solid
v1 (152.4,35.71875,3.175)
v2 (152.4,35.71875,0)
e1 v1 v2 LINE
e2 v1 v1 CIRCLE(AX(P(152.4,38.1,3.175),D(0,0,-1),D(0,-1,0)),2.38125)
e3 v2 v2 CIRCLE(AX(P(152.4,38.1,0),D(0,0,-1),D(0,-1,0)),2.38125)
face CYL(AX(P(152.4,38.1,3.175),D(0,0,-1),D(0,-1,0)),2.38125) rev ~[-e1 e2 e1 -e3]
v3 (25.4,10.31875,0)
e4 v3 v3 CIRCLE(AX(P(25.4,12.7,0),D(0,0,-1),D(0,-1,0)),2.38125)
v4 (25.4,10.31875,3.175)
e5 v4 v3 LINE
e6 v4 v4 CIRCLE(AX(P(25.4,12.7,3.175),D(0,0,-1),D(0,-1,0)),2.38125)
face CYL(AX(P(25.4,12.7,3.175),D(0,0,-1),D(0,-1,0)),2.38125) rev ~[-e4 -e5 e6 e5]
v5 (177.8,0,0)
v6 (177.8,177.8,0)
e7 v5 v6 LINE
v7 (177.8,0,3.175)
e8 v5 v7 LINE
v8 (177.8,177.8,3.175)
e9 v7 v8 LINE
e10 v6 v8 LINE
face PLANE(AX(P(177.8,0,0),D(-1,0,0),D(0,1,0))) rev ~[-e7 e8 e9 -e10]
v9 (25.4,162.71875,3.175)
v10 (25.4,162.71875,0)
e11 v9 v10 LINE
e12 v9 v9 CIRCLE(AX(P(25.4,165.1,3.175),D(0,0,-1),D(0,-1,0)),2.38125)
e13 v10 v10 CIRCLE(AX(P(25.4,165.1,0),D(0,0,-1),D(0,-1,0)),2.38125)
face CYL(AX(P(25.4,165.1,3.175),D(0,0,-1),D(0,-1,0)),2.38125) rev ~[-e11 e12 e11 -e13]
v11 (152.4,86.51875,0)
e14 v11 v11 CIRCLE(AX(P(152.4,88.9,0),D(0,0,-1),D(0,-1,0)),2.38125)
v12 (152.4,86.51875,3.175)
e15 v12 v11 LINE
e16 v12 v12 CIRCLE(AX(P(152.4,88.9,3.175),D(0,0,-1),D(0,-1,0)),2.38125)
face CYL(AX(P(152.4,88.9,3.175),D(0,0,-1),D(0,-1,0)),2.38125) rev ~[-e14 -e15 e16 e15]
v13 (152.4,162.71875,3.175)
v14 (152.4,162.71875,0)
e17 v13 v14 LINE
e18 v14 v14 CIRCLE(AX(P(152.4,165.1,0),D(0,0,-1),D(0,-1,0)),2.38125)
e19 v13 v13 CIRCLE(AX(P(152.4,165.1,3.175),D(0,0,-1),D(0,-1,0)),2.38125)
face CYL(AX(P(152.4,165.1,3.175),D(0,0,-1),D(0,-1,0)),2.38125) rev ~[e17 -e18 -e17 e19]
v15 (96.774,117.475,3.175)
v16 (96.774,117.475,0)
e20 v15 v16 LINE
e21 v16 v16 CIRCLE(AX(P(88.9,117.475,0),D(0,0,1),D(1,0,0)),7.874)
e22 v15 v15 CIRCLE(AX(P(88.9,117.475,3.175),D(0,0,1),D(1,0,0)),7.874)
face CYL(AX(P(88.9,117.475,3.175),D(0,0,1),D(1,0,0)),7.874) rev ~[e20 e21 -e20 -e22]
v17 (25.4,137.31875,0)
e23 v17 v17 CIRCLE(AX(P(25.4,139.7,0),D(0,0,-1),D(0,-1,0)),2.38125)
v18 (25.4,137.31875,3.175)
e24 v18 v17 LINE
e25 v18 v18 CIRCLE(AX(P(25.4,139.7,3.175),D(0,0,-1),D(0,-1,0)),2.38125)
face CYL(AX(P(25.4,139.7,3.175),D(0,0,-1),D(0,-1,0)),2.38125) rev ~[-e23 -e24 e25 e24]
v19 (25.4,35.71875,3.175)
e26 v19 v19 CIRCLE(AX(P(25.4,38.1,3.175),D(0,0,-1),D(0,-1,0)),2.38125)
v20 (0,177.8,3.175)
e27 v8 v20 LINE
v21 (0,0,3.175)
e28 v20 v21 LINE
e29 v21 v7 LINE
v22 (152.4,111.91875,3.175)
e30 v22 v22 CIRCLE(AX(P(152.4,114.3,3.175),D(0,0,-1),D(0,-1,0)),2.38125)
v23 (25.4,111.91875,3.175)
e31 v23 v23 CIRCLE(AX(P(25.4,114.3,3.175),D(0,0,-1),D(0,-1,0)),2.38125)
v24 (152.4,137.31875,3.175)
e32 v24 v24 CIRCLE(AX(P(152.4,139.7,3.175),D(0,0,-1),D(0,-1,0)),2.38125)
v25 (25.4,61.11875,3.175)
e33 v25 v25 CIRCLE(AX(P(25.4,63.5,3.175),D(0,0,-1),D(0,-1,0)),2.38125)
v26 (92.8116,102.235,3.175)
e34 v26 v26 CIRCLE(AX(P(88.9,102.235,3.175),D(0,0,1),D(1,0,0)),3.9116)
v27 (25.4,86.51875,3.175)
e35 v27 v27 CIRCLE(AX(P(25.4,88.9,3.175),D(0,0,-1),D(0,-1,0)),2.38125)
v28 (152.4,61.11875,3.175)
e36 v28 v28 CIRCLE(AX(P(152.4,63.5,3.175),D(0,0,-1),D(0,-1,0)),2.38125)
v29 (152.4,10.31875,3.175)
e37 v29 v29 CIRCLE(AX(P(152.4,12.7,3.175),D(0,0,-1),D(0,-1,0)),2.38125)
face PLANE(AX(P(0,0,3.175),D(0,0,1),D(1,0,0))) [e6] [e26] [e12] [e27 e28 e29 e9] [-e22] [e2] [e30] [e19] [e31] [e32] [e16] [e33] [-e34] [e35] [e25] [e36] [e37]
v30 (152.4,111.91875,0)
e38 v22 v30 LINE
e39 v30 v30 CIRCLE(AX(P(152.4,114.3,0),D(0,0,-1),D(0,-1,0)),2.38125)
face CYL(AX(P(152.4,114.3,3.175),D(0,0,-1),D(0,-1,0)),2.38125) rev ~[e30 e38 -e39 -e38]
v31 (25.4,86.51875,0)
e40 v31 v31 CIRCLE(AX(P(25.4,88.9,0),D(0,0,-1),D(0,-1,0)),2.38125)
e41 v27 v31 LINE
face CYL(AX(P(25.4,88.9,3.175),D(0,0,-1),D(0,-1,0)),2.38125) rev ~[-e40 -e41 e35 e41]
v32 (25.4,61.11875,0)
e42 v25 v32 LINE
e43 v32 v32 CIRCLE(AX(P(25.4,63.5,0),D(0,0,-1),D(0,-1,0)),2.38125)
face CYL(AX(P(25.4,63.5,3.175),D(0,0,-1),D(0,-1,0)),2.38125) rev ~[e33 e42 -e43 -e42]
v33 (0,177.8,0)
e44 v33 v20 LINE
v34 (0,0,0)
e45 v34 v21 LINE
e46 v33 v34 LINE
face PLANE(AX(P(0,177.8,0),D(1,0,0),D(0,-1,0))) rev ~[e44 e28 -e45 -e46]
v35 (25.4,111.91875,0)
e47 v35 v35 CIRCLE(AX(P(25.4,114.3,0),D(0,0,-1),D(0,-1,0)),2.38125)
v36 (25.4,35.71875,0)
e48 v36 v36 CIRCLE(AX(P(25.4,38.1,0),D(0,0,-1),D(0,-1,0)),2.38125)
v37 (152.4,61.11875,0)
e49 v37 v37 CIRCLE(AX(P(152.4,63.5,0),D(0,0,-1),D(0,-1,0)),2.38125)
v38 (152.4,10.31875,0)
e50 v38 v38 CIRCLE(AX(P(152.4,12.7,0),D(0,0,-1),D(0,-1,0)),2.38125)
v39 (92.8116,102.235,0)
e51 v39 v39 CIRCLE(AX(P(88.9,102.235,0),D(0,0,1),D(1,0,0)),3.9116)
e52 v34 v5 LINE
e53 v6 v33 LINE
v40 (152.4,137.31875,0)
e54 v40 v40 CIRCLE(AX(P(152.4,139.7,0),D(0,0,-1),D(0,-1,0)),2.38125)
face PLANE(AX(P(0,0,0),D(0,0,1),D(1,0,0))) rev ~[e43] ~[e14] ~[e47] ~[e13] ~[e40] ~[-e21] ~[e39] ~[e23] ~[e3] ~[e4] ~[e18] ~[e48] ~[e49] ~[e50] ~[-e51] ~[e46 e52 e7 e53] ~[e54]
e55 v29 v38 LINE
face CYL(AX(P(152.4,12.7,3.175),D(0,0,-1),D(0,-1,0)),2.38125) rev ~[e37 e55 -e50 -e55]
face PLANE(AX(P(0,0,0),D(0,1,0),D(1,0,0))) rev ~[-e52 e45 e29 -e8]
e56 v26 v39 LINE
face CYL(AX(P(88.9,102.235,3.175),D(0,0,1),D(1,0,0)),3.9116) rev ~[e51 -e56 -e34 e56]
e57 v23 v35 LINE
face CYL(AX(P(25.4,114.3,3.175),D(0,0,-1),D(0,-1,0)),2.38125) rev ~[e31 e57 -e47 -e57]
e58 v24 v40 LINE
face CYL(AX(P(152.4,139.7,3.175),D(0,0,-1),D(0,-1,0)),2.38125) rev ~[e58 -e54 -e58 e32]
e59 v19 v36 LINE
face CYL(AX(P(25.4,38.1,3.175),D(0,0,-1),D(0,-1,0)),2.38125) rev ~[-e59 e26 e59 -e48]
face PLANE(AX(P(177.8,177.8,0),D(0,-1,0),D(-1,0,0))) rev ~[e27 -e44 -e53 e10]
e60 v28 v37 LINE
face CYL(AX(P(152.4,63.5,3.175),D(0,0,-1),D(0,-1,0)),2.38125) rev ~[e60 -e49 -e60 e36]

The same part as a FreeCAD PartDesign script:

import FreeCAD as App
import Part
import Sketcher

V = App.Vector
Q = App.Units.Quantity

doc = App.newDocument("Part")
body = doc.addObject("PartDesign::Body", "Body")

sketch1 = doc.addObject("Sketcher::SketchObject", "Sketch")
body.addObject(sketch1)
sketch1.AttachmentSupport = (doc.XY_Plane, [""])
sketch1.MapMode = "FlatFace"
sketch1.addGeometry(Part.LineSegment(V(0, 177.8, 0), V(0, 0, 0)), False)
sketch1.addGeometry(Part.LineSegment(V(0, 0, 0), V(177.8, 0, 0)), False)
sketch1.addGeometry(Part.LineSegment(V(177.8, 0, 0), V(177.8, 177.8, 0)), False)
sketch1.addGeometry(Part.LineSegment(V(177.8, 177.8, 0), V(0, 177.8, 0)), False)
sketch1.addConstraint(Sketcher.Constraint("Coincident", 0, 2, 1, 1))
sketch1.addConstraint(Sketcher.Constraint("Coincident", 1, 2, 2, 1))
sketch1.addConstraint(Sketcher.Constraint("Coincident", 2, 2, 3, 1))
sketch1.addConstraint(Sketcher.Constraint("Coincident", 3, 2, 0, 1))
sketch1.addConstraint(Sketcher.Constraint("Vertical", 0))
sketch1.addConstraint(Sketcher.Constraint("Horizontal", 1))
sketch1.addConstraint(Sketcher.Constraint("Vertical", 2))
sketch1.addConstraint(Sketcher.Constraint("Horizontal", 3))
sketch1.addConstraint(Sketcher.Constraint("Coincident", 0, 2, -1, 1))
sketch1.addConstraint(Sketcher.Constraint("Equal", 3, 0))
sketch1.addConstraint(Sketcher.Constraint("DistanceX", 1, 1, 1, 2, Q("7 in")))
pad1 = doc.addObject("PartDesign::Pad", "Pad")
body.addObject(pad1)
pad1.Profile = sketch1
pad1.Length = Q("0.125 in")

sketch2 = doc.addObject("Sketcher::SketchObject", "Sketch001")
body.addObject(sketch2)
sketch2.AttachmentSupport = (doc.XY_Plane, [""])
sketch2.MapMode = "FlatFace"
sketch2.AttachmentOffset = App.Placement(V(0, 0, 0.125 * 25.4), App.Rotation())
sketch2.addGeometry(Part.Circle(V(88.9, 117.475, 0), V(0, 0, 1), 7.874), False)
sketch2.addConstraint(Sketcher.Constraint("Diameter", 0, Q("0.62 in")))
sketch2.addConstraint(Sketcher.Constraint("DistanceX", -1, 1, 0, 3, Q("3.5 in")))
sketch2.addConstraint(Sketcher.Constraint("DistanceY", -1, 1, 0, 3, Q("4.625 in")))
pocket1 = doc.addObject("PartDesign::Pocket", "Pocket")
body.addObject(pocket1)
pocket1.Profile = sketch2
pocket1.Type = "ThroughAll"

sketch3 = doc.addObject("Sketcher::SketchObject", "Sketch002")
body.addObject(sketch3)
sketch3.AttachmentSupport = (doc.XY_Plane, [""])
sketch3.MapMode = "FlatFace"
sketch3.AttachmentOffset = App.Placement(V(0, 0, 0.125 * 25.4), App.Rotation())
sketch3.addGeometry(Part.Circle(V(88.9, 102.235, 0), V(0, 0, 1), 3.9116), False)
sketch3.addConstraint(Sketcher.Constraint("Diameter", 0, Q("0.308 in")))
sketch3.addConstraint(Sketcher.Constraint("DistanceX", -1, 1, 0, 3, Q("3.5 in")))
sketch3.addConstraint(Sketcher.Constraint("DistanceY", -1, 1, 0, 3, Q("4.025 in")))
pocket2 = doc.addObject("PartDesign::Pocket", "Pocket001")
body.addObject(pocket2)
pocket2.Profile = sketch3
pocket2.Type = "ThroughAll"

sketch4 = doc.addObject("Sketcher::SketchObject", "Sketch003")
body.addObject(sketch4)
sketch4.AttachmentSupport = (doc.XY_Plane, [""])
sketch4.MapMode = "FlatFace"
sketch4.AttachmentOffset = App.Placement(V(0, 0, 0.125 * 25.4), App.Rotation())
sketch4.addGeometry(Part.Circle(V(25.4, 165.1, 0), V(0, 0, 1), 2.38125), False)
sketch4.addGeometry(Part.Circle(V(152.4, 165.1, 0), V(0, 0, 1), 2.38125), False)
sketch4.addGeometry(Part.Circle(V(25.4, 139.7, 0), V(0, 0, 1), 2.38125), False)
sketch4.addGeometry(Part.Circle(V(25.4, 114.3, 0), V(0, 0, 1), 2.38125), False)
sketch4.addGeometry(Part.Circle(V(25.4, 88.9, 0), V(0, 0, 1), 2.38125), False)
sketch4.addGeometry(Part.Circle(V(25.4, 63.5, 0), V(0, 0, 1), 2.38125), False)
sketch4.addGeometry(Part.Circle(V(25.4, 38.1, 0), V(0, 0, 1), 2.38125), False)
sketch4.addGeometry(Part.Circle(V(25.4, 12.7, 0), V(0, 0, 1), 2.38125), False)
sketch4.addGeometry(Part.Circle(V(152.4, 139.7, 0), V(0, 0, 1), 2.38125), False)
sketch4.addGeometry(Part.Circle(V(152.4, 114.3, 0), V(0, 0, 1), 2.38125), False)
sketch4.addGeometry(Part.Circle(V(152.4, 88.9, 0), V(0, 0, 1), 2.38125), False)
sketch4.addGeometry(Part.Circle(V(152.4, 63.5, 0), V(0, 0, 1), 2.38125), False)
sketch4.addGeometry(Part.Circle(V(152.4, 38.1, 0), V(0, 0, 1), 2.38125), False)
sketch4.addGeometry(Part.Circle(V(152.4, 12.7, 0), V(0, 0, 1), 2.38125), False)
sketch4.addConstraint(Sketcher.Constraint("Equal", 0, 1))
sketch4.addConstraint(Sketcher.Constraint("Equal", 1, 2))
sketch4.addConstraint(Sketcher.Constraint("Equal", 2, 3))
sketch4.addConstraint(Sketcher.Constraint("Equal", 3, 4))
sketch4.addConstraint(Sketcher.Constraint("Equal", 4, 5))
sketch4.addConstraint(Sketcher.Constraint("Equal", 5, 6))
sketch4.addConstraint(Sketcher.Constraint("Equal", 6, 7))
sketch4.addConstraint(Sketcher.Constraint("Equal", 7, 8))
sketch4.addConstraint(Sketcher.Constraint("Equal", 8, 9))
sketch4.addConstraint(Sketcher.Constraint("Equal", 9, 10))
sketch4.addConstraint(Sketcher.Constraint("Equal", 10, 11))
sketch4.addConstraint(Sketcher.Constraint("Equal", 11, 12))
sketch4.addConstraint(Sketcher.Constraint("Equal", 12, 13))
sketch4.addConstraint(Sketcher.Constraint("Horizontal", 0, 3, 1, 3))
sketch4.addConstraint(Sketcher.Constraint("Horizontal", 2, 3, 8, 3))
sketch4.addConstraint(Sketcher.Constraint("Horizontal", 3, 3, 9, 3))
sketch4.addConstraint(Sketcher.Constraint("Horizontal", 4, 3, 10, 3))
sketch4.addConstraint(Sketcher.Constraint("Horizontal", 5, 3, 11, 3))
sketch4.addConstraint(Sketcher.Constraint("Horizontal", 6, 3, 12, 3))
sketch4.addConstraint(Sketcher.Constraint("Horizontal", 7, 3, 13, 3))
sketch4.addConstraint(Sketcher.Constraint("Vertical", 0, 3, 2, 3))
sketch4.addConstraint(Sketcher.Constraint("Vertical", 2, 3, 3, 3))
sketch4.addConstraint(Sketcher.Constraint("Vertical", 3, 3, 4, 3))
sketch4.addConstraint(Sketcher.Constraint("Vertical", 4, 3, 5, 3))
sketch4.addConstraint(Sketcher.Constraint("Vertical", 5, 3, 6, 3))
sketch4.addConstraint(Sketcher.Constraint("Vertical", 6, 3, 7, 3))
sketch4.addConstraint(Sketcher.Constraint("Vertical", 1, 3, 8, 3))
sketch4.addConstraint(Sketcher.Constraint("Vertical", 8, 3, 9, 3))
sketch4.addConstraint(Sketcher.Constraint("Vertical", 9, 3, 10, 3))
sketch4.addConstraint(Sketcher.Constraint("Vertical", 10, 3, 11, 3))
sketch4.addConstraint(Sketcher.Constraint("Vertical", 11, 3, 12, 3))
sketch4.addConstraint(Sketcher.Constraint("Vertical", 12, 3, 13, 3))
sketch4.addConstraint(Sketcher.Constraint("Diameter", 0, Q("0.1875 in")))
sketch4.addConstraint(Sketcher.Constraint("DistanceX", -1, 1, 0, 3, Q("1 in")))
sketch4.addConstraint(Sketcher.Constraint("DistanceX", -1, 1, 1, 3, Q("6 in")))
sketch4.addConstraint(Sketcher.Constraint("DistanceY", 2, 3, 0, 3, Q("1 in")))
sketch4.addConstraint(Sketcher.Constraint("DistanceY", 3, 3, 2, 3, Q("1 in")))
sketch4.addConstraint(Sketcher.Constraint("DistanceY", 4, 3, 3, 3, Q("1 in")))
sketch4.addConstraint(Sketcher.Constraint("DistanceY", 5, 3, 4, 3, Q("1 in")))
sketch4.addConstraint(Sketcher.Constraint("DistanceY", 6, 3, 5, 3, Q("1 in")))
sketch4.addConstraint(Sketcher.Constraint("DistanceY", 7, 3, 6, 3, Q("1 in")))
sketch4.addConstraint(Sketcher.Constraint("DistanceY", -1, 1, 0, 3, Q("6.5 in")))
doc.recompute()
hole = doc.addObject("PartDesign::Hole", "Hole")
body.addObject(hole)
hole.Profile = sketch4
hole.ThreadType = "None"
hole.Diameter = Q("0.1875 in")
hole.DepthType = "ThroughAll"

doc.recompute()
